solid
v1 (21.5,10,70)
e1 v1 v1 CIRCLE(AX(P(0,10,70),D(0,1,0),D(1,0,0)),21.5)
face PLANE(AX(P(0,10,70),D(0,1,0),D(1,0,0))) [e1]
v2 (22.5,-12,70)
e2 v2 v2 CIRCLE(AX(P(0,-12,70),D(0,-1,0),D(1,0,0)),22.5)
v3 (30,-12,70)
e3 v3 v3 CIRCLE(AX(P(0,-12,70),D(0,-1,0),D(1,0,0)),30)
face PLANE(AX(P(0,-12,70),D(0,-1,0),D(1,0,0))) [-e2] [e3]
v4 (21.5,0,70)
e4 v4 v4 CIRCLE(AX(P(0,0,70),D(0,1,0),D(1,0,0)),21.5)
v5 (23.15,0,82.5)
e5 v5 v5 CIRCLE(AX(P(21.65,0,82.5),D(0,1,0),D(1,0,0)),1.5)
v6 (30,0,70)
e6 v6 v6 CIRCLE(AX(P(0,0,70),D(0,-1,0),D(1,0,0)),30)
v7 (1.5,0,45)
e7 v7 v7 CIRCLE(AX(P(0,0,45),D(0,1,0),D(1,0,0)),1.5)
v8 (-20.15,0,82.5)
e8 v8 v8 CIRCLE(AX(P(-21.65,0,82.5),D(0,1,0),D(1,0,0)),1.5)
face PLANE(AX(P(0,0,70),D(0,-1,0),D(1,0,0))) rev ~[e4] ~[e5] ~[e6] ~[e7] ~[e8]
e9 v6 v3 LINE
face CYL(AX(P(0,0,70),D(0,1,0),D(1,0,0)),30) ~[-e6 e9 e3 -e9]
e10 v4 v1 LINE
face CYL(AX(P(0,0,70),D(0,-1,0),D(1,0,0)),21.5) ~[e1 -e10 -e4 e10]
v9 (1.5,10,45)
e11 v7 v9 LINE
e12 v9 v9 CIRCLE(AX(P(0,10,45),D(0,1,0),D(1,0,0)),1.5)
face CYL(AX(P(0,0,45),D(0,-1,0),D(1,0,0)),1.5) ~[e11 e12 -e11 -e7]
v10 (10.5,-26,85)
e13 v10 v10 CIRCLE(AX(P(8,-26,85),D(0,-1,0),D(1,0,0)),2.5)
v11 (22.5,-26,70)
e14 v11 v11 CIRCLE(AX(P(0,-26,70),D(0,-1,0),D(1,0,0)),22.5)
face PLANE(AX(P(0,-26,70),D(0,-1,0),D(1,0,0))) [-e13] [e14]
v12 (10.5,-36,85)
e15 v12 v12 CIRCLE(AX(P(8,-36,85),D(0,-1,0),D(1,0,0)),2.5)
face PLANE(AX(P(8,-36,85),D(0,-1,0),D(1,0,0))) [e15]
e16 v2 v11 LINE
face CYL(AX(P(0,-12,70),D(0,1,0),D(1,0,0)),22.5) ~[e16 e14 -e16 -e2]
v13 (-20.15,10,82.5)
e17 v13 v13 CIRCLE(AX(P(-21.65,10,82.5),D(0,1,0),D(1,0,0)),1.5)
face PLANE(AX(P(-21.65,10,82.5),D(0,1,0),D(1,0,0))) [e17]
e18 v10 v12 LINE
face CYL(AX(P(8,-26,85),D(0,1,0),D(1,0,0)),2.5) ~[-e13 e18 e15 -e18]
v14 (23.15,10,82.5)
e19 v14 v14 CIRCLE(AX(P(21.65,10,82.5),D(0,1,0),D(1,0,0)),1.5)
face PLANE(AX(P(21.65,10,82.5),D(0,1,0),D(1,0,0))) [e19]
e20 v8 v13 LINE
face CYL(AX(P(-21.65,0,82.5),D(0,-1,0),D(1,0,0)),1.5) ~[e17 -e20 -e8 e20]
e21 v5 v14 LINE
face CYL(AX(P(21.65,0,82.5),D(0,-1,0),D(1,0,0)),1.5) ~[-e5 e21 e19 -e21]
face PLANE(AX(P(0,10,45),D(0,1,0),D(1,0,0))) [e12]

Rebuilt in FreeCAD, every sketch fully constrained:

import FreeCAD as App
import Part
import Sketcher

V = App.Vector

doc = App.newDocument("Part")
body = doc.addObject("PartDesign::Body", "Body")

# Sketch on XY plane
sketch1 = body.newObject("Sketcher::SketchObject", "Sketch")
sketch1.AttachmentSupport = (doc.getObject("XY_Plane"), [""])
sketch1.MapMode = "FlatFace"
sketch1.addGeometry(Part.Circle(V(0, 0, 0), V(0, 0, 1), 30), False)
sketch1.addConstraint([
    Sketcher.Constraint("Coincident", 0, 3, -1, 1),
    Sketcher.Constraint("Diameter", 0, 60.0),
])
pad1 = body.newObject("PartDesign::Pad", "Pad")
pad1.Profile = sketch1
pad1.Length = 12

# Sketch on XY plane
sketch2 = body.newObject("Sketcher::SketchObject", "Sketch001")
sketch2.AttachmentSupport = (doc.getObject("XY_Plane"), [""])
sketch2.MapMode = "FlatFace"
sketch2.AttachmentOffset = App.Placement(V(0, 0, 12), App.Rotation())
sketch2.addGeometry(Part.Circle(V(0, 0, 0), V(0, 0, 1), 22.5), False)
sketch2.addConstraint([
    Sketcher.Constraint("Coincident", 0, 3, -1, 1),
    Sketcher.Constraint("Diameter", 0, 45.0),
])
pad2 = body.newObject("PartDesign::Pad", "Pad001")
pad2.Profile = sketch2
pad2.Length = 14

# Sketch on XY plane
sketch3 = body.newObject("Sketcher::SketchObject", "Sketch002")
sketch3.AttachmentSupport = (doc.getObject("XY_Plane"), [""])
sketch3.MapMode = "FlatFace"
sketch3.addGeometry(Part.Circle(V(0, 0, 0), V(0, 0, 1), 21.5), False)
sketch3.addConstraint([
    Sketcher.Constraint("Coincident", 0, 3, -1, 1),
    Sketcher.Constraint("Diameter", 0, 43.0),
])
pad3 = body.newObject("PartDesign::Pad", "Pad002")
pad3.Profile = sketch3
pad3.Length = 10
pad3.Reversed = True

# Sketch on XY plane
sketch4 = body.newObject("Sketcher::SketchObject", "Sketch003")
sketch4.AttachmentSupport = (doc.getObject("XY_Plane"), [""])
sketch4.MapMode = "FlatFace"
sketch4.addGeometry([
    Part.Circle(V(0, -25, 0), V(0, 0, 1), 1.5),
    Part.Circle(V(21.65, 12.5, 0), V(0, 0, 1), 1.5),
    Part.Circle(V(-21.65, 12.5, 0), V(0, 0, 1), 1.5),
], False)
sketch4.addConstraint([
    Sketcher.Constraint("Equal", 0, 1),
    Sketcher.Constraint("Equal", 1, 2),
    Sketcher.Constraint("Symmetric", 1, 3, 2, 3, -2),
    Sketcher.Constraint("PointOnObject", 0, 3, -2),
    Sketcher.Constraint("Diameter", 0, 3.0),
    Sketcher.Constraint("DistanceY", 0, 3, -1, 1, 25.0),
    Sketcher.Constraint("DistanceY", -1, 1, 1, 3, 12.5),
    Sketcher.Constraint("DistanceX", 2, 3, 1, 3, 43.3),
])
pad4 = body.newObject("PartDesign::Pad", "Pad003")
pad4.Profile = sketch4
pad4.Length = 10
pad4.Reversed = True

# Sketch on XY plane
sketch5 = body.newObject("Sketcher::SketchObject", "Sketch004")
sketch5.AttachmentSupport = (doc.getObject("XY_Plane"), [""])
sketch5.MapMode = "FlatFace"
sketch5.AttachmentOffset = App.Placement(V(0, 0, 26), App.Rotation())
sketch5.addGeometry(Part.Circle(V(8, 15, 0), V(0, 0, 1), 2.5), False)
sketch5.addConstraint([
    Sketcher.Constraint("Diameter", 0, 5.0),
    Sketcher.Constraint("DistanceX", -1, 1, 0, 3, 8.0),
    Sketcher.Constraint("DistanceY", -1, 1, 0, 3, 15.0),
])
pad5 = body.newObject("PartDesign::Pad", "Pad004")
pad5.Profile = sketch5
pad5.Length = 10
body2 = doc.addObject("PartDesign::Body", "Body001")
doc.recompute()

body.Placement = App.Placement(V(0, 0, 70), App.Rotation(V(1, 0, 0), 90))
boolean = body2.newObject("PartDesign::Boolean", "Boolean")
boolean.Type = "Fuse"
boolean.addObjects([body])

doc.recompute()
